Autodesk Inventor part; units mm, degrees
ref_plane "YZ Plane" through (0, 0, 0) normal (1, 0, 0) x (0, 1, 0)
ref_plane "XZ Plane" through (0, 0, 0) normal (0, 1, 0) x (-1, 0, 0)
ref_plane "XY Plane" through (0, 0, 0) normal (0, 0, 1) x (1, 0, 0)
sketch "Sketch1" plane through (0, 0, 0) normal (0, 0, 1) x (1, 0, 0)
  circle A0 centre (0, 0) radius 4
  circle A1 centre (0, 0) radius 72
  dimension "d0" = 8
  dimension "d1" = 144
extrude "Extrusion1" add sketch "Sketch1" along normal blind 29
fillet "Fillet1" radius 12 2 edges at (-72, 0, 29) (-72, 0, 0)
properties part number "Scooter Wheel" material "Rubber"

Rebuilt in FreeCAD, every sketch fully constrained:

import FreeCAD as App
import Part
import Sketcher


def edges_at(feature, points):
    """Names of the edges that pass closest to the given points."""
    edges = feature.Shape.Edges
    near = lambda p: min(range(len(edges)), key=lambda i: edges[i].distToShape(Part.Vertex(*p))[0])
    return sorted({f"Edge{near(p) + 1}" for p in points})

doc = App.newDocument("Part")
body = doc.addObject("PartDesign::Body", "Body")

sketch1 = body.newObject("Sketcher::SketchObject", "Sketch")
sketch1.AttachmentSupport = (doc.getObject("XY_Plane"), [""])
sketch1.MapMode = "FlatFace"
sketch1.addGeometry([
    Part.Circle(App.Vector(0, 0, 0), App.Vector(0, 0, 1), 72),
    Part.Circle(App.Vector(0, 0, 0), App.Vector(0, 0, 1), 4),
], False)
sketch1.addConstraint([
    Sketcher.Constraint("Coincident", 0, 3, -1, 1),
    Sketcher.Constraint("Coincident", 1, 3, -1, 1),
    Sketcher.Constraint("Diameter", 0, 144.0),
    Sketcher.Constraint("Diameter", 1, 8.0),
])
pad1 = body.newObject("PartDesign::Pad", "Pad")
pad1.Profile = sketch1
pad1.Length = 29
doc.recompute()

fillet = body.newObject("PartDesign::Fillet", "Fillet")
fillet.Base = (pad1, edges_at(pad1, [(-72, 0, 29), (-72, 0, 0)]))
fillet.Radius = 12

doc.recompute()
